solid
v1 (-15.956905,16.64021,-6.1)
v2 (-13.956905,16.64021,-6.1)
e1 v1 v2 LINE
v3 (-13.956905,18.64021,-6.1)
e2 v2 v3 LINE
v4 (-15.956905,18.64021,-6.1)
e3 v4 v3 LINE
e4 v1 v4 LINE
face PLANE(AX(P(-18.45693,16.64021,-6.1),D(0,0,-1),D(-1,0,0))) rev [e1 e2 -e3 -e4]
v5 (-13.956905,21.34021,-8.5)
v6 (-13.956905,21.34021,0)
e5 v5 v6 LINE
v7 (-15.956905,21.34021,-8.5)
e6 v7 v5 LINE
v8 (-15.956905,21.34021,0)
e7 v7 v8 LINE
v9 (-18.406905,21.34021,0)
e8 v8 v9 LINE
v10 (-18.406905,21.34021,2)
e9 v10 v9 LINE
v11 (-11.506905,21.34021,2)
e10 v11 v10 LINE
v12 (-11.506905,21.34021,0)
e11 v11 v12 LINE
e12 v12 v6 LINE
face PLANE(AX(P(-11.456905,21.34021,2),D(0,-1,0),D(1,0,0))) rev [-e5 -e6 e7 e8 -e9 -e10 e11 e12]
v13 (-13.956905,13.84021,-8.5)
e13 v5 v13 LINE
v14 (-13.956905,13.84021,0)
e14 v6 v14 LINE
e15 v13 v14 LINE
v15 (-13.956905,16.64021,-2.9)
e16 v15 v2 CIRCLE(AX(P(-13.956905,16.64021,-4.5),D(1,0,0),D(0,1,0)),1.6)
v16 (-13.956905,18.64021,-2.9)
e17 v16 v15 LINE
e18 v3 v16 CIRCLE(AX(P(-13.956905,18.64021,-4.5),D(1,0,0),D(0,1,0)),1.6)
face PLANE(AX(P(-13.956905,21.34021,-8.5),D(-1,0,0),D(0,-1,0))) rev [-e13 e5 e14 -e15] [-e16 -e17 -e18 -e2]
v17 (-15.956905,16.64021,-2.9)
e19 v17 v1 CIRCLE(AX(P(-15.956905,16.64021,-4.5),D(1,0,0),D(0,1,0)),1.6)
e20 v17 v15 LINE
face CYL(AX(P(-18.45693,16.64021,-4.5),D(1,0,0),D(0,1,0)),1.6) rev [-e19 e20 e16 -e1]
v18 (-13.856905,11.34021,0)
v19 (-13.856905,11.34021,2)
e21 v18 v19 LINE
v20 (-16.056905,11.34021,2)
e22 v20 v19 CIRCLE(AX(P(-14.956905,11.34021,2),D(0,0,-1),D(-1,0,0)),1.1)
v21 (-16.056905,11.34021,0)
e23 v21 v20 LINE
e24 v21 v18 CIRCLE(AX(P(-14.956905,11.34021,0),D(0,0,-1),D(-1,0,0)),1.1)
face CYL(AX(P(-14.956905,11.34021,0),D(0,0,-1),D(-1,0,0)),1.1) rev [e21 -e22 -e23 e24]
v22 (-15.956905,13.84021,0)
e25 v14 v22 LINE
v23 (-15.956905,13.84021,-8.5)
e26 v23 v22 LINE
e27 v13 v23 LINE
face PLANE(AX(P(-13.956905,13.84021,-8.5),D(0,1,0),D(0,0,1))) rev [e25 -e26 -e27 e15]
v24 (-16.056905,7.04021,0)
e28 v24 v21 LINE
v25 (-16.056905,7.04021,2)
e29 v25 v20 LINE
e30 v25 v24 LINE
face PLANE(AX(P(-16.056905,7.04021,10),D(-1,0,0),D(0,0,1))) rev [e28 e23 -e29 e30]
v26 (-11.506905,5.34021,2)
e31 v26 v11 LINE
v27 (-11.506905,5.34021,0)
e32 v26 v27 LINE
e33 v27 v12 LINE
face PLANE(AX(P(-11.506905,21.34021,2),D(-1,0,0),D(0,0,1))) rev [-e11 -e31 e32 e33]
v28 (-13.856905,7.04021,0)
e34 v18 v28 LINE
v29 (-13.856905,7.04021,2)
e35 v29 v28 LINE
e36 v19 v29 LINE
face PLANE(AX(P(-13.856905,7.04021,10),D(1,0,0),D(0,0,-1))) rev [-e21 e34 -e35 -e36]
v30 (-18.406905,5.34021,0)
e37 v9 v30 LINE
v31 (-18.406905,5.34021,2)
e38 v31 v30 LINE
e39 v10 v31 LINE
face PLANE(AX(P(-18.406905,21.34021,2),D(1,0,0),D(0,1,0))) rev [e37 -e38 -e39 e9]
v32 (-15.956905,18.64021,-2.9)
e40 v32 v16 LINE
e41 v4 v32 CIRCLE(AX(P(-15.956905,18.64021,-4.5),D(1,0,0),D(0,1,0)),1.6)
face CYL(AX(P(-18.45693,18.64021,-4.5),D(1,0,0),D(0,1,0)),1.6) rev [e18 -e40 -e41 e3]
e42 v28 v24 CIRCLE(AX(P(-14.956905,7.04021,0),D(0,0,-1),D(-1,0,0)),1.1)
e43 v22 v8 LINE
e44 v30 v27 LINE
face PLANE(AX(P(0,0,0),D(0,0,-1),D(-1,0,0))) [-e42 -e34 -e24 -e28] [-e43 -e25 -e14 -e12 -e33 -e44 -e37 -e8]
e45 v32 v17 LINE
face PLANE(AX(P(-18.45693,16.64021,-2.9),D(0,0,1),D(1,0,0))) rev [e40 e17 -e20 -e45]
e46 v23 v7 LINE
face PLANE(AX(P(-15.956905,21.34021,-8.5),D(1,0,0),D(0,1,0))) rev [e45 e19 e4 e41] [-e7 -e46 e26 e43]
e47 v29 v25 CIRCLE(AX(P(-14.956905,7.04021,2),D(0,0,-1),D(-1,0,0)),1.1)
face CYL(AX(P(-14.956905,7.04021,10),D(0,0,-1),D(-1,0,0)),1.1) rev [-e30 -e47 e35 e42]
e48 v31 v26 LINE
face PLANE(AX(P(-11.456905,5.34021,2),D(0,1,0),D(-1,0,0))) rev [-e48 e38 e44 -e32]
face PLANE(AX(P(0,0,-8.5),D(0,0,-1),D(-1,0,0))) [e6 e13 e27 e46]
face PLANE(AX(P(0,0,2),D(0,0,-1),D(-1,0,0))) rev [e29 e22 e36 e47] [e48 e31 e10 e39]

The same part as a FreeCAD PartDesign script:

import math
import FreeCAD as App
import Part
import Sketcher
from FreeCAD import Vector
Q = App.Units.Quantity


def add_polygon(sketch, points):
    """Adds a closed chain of lines whose ends are joined by coincident constraints."""
    first, n = sketch.GeometryCount, len(points)
    for a, b in zip(points, points[1:] + points[:1]):
        sketch.addGeometry(Part.LineSegment(App.Vector(*a, 0), App.Vector(*b, 0)), False)
    for i in range(n):
        sketch.addConstraint(Sketcher.Constraint("Coincident", first + i, 2, first + (i + 1) % n, 1))

doc = App.newDocument("Part")
params = doc.addObject("Spreadsheet::Sheet", "Params")
for row, (alias, value) in enumerate([
    ("sketch1_width", "7 mm"),
    ("sketch1_height", "16 mm"),
    ("pad1_length", "2 mm"),
    ("sketch2_width", "2 mm"),
    ("sketch2_height", "7.5 mm"),
    ("pad2_length", "8.5 mm"),
    ("sketch3_diameter", "2.2 mm"),
    ("hole_diameter", "2.2 mm"),
    ("hole_depth", "2 mm"),
    ("sketch4_radius", "1.6 mm"),
    ("sketch4_width", "2 mm"),
    ("sketch5_radius", "1.1 mm"),
    ("sketch5_height", "4.3 mm"),
    ("pocket2_length", "10 mm"),
    ("sketch6_height", "16 mm"),
    ("sketch6_width", "0.05 mm"),
], start=1):
    params.set(f"A{row}", alias)
    params.set(f"B{row}", "=" + value)
    params.setAlias(f"B{row}", alias)

body = doc.addObject("PartDesign::Body", "Body")

sketch1 = body.newObject("Sketcher::SketchObject", "Sketch")
sketch1.AttachmentSupport = (doc.getObject("XY_Plane"), [""])
sketch1.MapMode = "FlatFace"
add_polygon(sketch1, [(-18.456905, 21.34021), (-18.456905, 5.34021), (-11.456905, 5.34021), (-11.456905, 21.34021)])
sketch1.addConstraint(Sketcher.Constraint("Vertical", 0))
sketch1.addConstraint(Sketcher.Constraint("Horizontal", 1))
sketch1.addConstraint(Sketcher.Constraint("Vertical", 2))
sketch1.addConstraint(Sketcher.Constraint("Horizontal", 3))
sketch1.addConstraint(Sketcher.Constraint("DistanceX", 1, 1, 1, 2, Q("7 mm")))
sketch1.addConstraint(Sketcher.Constraint("DistanceY", 0, 2, 0, 1, Q("16 mm")))
sketch1.addConstraint(Sketcher.Constraint("DistanceY", -1, 1, 0, 2, Q("5.34021 mm")))
sketch1.addConstraint(Sketcher.Constraint("DistanceX", 0, 2, -1, 1, Q("18.456905 mm")))
sketch1.setExpression("Constraints[8]", "Params.sketch1_width")
sketch1.setExpression("Constraints[9]", "Params.sketch1_height")
pad1 = body.newObject("PartDesign::Pad", "Pad")
pad1.Profile = sketch1
pad1.setExpression("Length", "Params.pad1_length")

sketch2 = body.newObject("Sketcher::SketchObject", "Sketch001")
sketch2.AttachmentSupport = (doc.getObject("XY_Plane"), [""])
sketch2.MapMode = "FlatFace"
add_polygon(sketch2, [(-13.956905, 21.34021), (-13.956905, 13.84021), (-15.956905, 13.84021), (-15.956905, 21.34021)])
sketch2.addConstraint(Sketcher.Constraint("Vertical", 0))
sketch2.addConstraint(Sketcher.Constraint("Horizontal", 1))
sketch2.addConstraint(Sketcher.Constraint("Vertical", 2))
sketch2.addConstraint(Sketcher.Constraint("Horizontal", 3))
sketch2.addConstraint(Sketcher.Constraint("DistanceX", 1, 2, 1, 1, Q("2 mm")))
sketch2.addConstraint(Sketcher.Constraint("DistanceY", 0, 2, 0, 1, Q("7.5 mm")))
sketch2.addConstraint(Sketcher.Constraint("DistanceY", -1, 1, 0, 2, Q("13.84021 mm")))
sketch2.addConstraint(Sketcher.Constraint("DistanceX", 0, 2, -1, 1, Q("13.956905 mm")))
sketch2.setExpression("Constraints[8]", "Params.sketch2_width")
sketch2.setExpression("Constraints[9]", "Params.sketch2_height")
pad2 = body.newObject("PartDesign::Pad", "Pad001")
pad2.Profile = sketch2
pad2.setExpression("Length", "Params.pad2_length")
pad2.Reversed = True

sketch3 = body.newObject("Sketcher::SketchObject", "Sketch002")
sketch3.AttachmentSupport = (doc.getObject("XY_Plane"), [""])
sketch3.MapMode = "FlatFace"
sketch3.addGeometry(Part.Circle(Vector(-14.956905, 11.34021, 0), Vector(0, 0, 1), 1.1), False)
sketch3.addConstraint(Sketcher.Constraint("Diameter", 0, Q("2.2 mm")))
sketch3.addConstraint(Sketcher.Constraint("DistanceY", -1, 1, 0, 3, Q("11.34021 mm")))
sketch3.addConstraint(Sketcher.Constraint("DistanceX", 0, 3, -1, 1, Q("14.956905 mm")))
sketch3.setExpression("Constraints[0]", "Params.sketch3_diameter")
doc.recompute()
hole = body.newObject("PartDesign::Hole", "Hole")
hole.Profile = sketch3
hole.ThreadType = "None"
hole.setExpression("Diameter", "Params.hole_diameter")
hole.DepthType = "Dimension"
hole.setExpression("Depth", "Params.hole_depth")
hole.DrillPoint = "Flat"
hole.Reversed = True

sketch4 = body.newObject("Sketcher::SketchObject", "Sketch003")
sketch4.AttachmentSupport = (doc.getObject("YZ_Plane"), [""])
sketch4.MapMode = "FlatFace"
sketch4.AttachmentOffset = App.Placement(Vector(0, 0, -13.956905), App.Rotation())
sketch4.addGeometry(Part.LineSegment(Vector(18.64021, -2.9, 0), Vector(16.64021, -2.9, 0)), False)
sketch4.addGeometry(Part.ArcOfCircle(Part.Circle(Vector(16.64021, -4.5, 0), Vector(0, 0, 1), 1.6), math.radians(90), math.radians(270)), False)
sketch4.addGeometry(Part.LineSegment(Vector(16.64021, -6.1, 0), Vector(18.64021, -6.1, 0)), False)
sketch4.addGeometry(Part.ArcOfCircle(Part.Circle(Vector(18.64021, -4.5, 0), Vector(0, 0, 1), 1.6), math.radians(-90), math.radians(90)), False)
sketch4.addConstraint(Sketcher.Constraint("Tangent", 0, 2, 1, 1))
sketch4.addConstraint(Sketcher.Constraint("Tangent", 1, 2, 2, 1))
sketch4.addConstraint(Sketcher.Constraint("Tangent", 2, 2, 3, 1))
sketch4.addConstraint(Sketcher.Constraint("Tangent", 3, 2, 0, 1))
sketch4.addConstraint(Sketcher.Constraint("Horizontal", 0))
sketch4.addConstraint(Sketcher.Constraint("Horizontal", 2))
sketch4.addConstraint(Sketcher.Constraint("Radius", 1, Q("1.6 mm")))
sketch4.addConstraint(Sketcher.Constraint("DistanceX", 0, 2, 0, 1, Q("2 mm")))
sketch4.addConstraint(Sketcher.Constraint("DistanceY", 1, 3, -1, 1, Q("4.5 mm")))
sketch4.addConstraint(Sketcher.Constraint("DistanceX", -1, 1, 1, 3, Q("16.64021 mm")))
sketch4.setExpression("Constraints[6]", "Params.sketch4_radius")
sketch4.setExpression("Constraints[7]", "Params.sketch4_width")
pocket1 = body.newObject("PartDesign::Pocket", "Pocket")
pocket1.Profile = sketch4
pocket1.Type = "ThroughAll"

sketch5 = body.newObject("Sketcher::SketchObject", "Sketch004")
sketch5.AttachmentSupport = (doc.getObject("XY_Plane"), [""])
sketch5.MapMode = "FlatFace"
sketch5.addGeometry(Part.LineSegment(Vector(-13.856905, 11.34021, 0), Vector(-13.856905, 7.04021, 0)), False)
sketch5.addGeometry(Part.ArcOfCircle(Part.Circle(Vector(-14.956905, 7.04021, 0), Vector(0, 0, 1), 1.1), math.radians(180), math.radians(360)), False)
sketch5.addGeometry(Part.LineSegment(Vector(-16.056905, 7.04021, 0), Vector(-16.056905, 11.34021, 0)), False)
sketch5.addGeometry(Part.LineSegment(Vector(-16.056905, 11.34021, 0), Vector(-13.856905, 11.34021, 0)), False)
sketch5.addConstraint(Sketcher.Constraint("Tangent", 0, 2, 1, 2))
sketch5.addConstraint(Sketcher.Constraint("Tangent", 1, 1, 2, 1))
sketch5.addConstraint(Sketcher.Constraint("Coincident", 2, 2, 3, 1))
sketch5.addConstraint(Sketcher.Constraint("Coincident", 3, 2, 0, 1))
sketch5.addConstraint(Sketcher.Constraint("Vertical", 0))
sketch5.addConstraint(Sketcher.Constraint("Vertical", 2))
sketch5.addConstraint(Sketcher.Constraint("Horizontal", 3))
sketch5.addConstraint(Sketcher.Constraint("Radius", 1, Q("1.1 mm")))
sketch5.addConstraint(Sketcher.Constraint("DistanceY", 0, 2, 0, 1, Q("4.3 mm")))
sketch5.addConstraint(Sketcher.Constraint("DistanceY", -1, 1, 1, 3, Q("7.04021 mm")))
sketch5.addConstraint(Sketcher.Constraint("DistanceX", 1, 3, -1, 1, Q("14.956905 mm")))
sketch5.setExpression("Constraints[7]", "Params.sketch5_radius")
sketch5.setExpression("Constraints[8]", "Params.sketch5_height")
pocket2 = body.newObject("PartDesign::Pocket", "Pocket001")
pocket2.Profile = sketch5
pocket2.setExpression("Length", "Params.pocket2_length")
pocket2.Reversed = True

sketch6 = body.newObject("Sketcher::SketchObject", "Sketch005")
sketch6.AttachmentSupport = (doc.getObject("XY_Plane"), [""])
sketch6.MapMode = "FlatFace"
add_polygon(sketch6, [(-11.456905, 21.34021), (-11.456905, 5.34021), (-11.506905, 5.34021), (-11.506905, 21.34021)])
add_polygon(sketch6, [(-18.406905, 21.34021), (-18.406905, 5.34021), (-18.456905, 5.34021), (-18.456905, 21.34021)])
sketch6.addConstraint(Sketcher.Constraint("Vertical", 0))
sketch6.addConstraint(Sketcher.Constraint("Horizontal", 1))
sketch6.addConstraint(Sketcher.Constraint("Vertical", 2))
sketch6.addConstraint(Sketcher.Constraint("Horizontal", 3))
sketch6.addConstraint(Sketcher.Constraint("Vertical", 4))
sketch6.addConstraint(Sketcher.Constraint("Horizontal", 5))
sketch6.addConstraint(Sketcher.Constraint("Vertical", 6))
sketch6.addConstraint(Sketcher.Constraint("Horizontal", 7))
sketch6.addConstraint(Sketcher.Constraint("Horizontal", 1, 2, 4, 2))
sketch6.addConstraint(Sketcher.Constraint("Horizontal", 3, 2, 6, 2))
sketch6.addConstraint(Sketcher.Constraint("Equal", 3, 5))
sketch6.addConstraint(Sketcher.Constraint("DistanceY", 0, 2, 0, 1, Q("16 mm")))
sketch6.addConstraint(Sketcher.Constraint("DistanceX", 5, 2, 0, 2, Q("7 mm")))
sketch6.addConstraint(Sketcher.Constraint("DistanceX", 1, 2, 1, 1, Q("0.05 mm")))
sketch6.addConstraint(Sketcher.Constraint("DistanceY", -1, 1, 0, 2, Q("5.34021 mm")))
sketch6.addConstraint(Sketcher.Constraint("DistanceX", 0, 2, -1, 1, Q("11.456905 mm")))
sketch6.setExpression("Constraints[19]", "Params.sketch6_height")
sketch6.setExpression("Constraints[21]", "Params.sketch6_width")
pocket3 = body.newObject("PartDesign::Pocket", "Pocket002")
pocket3.Profile = sketch6
pocket3.Type = "ThroughAll"
pocket3.Reversed = True

doc.recompute()
